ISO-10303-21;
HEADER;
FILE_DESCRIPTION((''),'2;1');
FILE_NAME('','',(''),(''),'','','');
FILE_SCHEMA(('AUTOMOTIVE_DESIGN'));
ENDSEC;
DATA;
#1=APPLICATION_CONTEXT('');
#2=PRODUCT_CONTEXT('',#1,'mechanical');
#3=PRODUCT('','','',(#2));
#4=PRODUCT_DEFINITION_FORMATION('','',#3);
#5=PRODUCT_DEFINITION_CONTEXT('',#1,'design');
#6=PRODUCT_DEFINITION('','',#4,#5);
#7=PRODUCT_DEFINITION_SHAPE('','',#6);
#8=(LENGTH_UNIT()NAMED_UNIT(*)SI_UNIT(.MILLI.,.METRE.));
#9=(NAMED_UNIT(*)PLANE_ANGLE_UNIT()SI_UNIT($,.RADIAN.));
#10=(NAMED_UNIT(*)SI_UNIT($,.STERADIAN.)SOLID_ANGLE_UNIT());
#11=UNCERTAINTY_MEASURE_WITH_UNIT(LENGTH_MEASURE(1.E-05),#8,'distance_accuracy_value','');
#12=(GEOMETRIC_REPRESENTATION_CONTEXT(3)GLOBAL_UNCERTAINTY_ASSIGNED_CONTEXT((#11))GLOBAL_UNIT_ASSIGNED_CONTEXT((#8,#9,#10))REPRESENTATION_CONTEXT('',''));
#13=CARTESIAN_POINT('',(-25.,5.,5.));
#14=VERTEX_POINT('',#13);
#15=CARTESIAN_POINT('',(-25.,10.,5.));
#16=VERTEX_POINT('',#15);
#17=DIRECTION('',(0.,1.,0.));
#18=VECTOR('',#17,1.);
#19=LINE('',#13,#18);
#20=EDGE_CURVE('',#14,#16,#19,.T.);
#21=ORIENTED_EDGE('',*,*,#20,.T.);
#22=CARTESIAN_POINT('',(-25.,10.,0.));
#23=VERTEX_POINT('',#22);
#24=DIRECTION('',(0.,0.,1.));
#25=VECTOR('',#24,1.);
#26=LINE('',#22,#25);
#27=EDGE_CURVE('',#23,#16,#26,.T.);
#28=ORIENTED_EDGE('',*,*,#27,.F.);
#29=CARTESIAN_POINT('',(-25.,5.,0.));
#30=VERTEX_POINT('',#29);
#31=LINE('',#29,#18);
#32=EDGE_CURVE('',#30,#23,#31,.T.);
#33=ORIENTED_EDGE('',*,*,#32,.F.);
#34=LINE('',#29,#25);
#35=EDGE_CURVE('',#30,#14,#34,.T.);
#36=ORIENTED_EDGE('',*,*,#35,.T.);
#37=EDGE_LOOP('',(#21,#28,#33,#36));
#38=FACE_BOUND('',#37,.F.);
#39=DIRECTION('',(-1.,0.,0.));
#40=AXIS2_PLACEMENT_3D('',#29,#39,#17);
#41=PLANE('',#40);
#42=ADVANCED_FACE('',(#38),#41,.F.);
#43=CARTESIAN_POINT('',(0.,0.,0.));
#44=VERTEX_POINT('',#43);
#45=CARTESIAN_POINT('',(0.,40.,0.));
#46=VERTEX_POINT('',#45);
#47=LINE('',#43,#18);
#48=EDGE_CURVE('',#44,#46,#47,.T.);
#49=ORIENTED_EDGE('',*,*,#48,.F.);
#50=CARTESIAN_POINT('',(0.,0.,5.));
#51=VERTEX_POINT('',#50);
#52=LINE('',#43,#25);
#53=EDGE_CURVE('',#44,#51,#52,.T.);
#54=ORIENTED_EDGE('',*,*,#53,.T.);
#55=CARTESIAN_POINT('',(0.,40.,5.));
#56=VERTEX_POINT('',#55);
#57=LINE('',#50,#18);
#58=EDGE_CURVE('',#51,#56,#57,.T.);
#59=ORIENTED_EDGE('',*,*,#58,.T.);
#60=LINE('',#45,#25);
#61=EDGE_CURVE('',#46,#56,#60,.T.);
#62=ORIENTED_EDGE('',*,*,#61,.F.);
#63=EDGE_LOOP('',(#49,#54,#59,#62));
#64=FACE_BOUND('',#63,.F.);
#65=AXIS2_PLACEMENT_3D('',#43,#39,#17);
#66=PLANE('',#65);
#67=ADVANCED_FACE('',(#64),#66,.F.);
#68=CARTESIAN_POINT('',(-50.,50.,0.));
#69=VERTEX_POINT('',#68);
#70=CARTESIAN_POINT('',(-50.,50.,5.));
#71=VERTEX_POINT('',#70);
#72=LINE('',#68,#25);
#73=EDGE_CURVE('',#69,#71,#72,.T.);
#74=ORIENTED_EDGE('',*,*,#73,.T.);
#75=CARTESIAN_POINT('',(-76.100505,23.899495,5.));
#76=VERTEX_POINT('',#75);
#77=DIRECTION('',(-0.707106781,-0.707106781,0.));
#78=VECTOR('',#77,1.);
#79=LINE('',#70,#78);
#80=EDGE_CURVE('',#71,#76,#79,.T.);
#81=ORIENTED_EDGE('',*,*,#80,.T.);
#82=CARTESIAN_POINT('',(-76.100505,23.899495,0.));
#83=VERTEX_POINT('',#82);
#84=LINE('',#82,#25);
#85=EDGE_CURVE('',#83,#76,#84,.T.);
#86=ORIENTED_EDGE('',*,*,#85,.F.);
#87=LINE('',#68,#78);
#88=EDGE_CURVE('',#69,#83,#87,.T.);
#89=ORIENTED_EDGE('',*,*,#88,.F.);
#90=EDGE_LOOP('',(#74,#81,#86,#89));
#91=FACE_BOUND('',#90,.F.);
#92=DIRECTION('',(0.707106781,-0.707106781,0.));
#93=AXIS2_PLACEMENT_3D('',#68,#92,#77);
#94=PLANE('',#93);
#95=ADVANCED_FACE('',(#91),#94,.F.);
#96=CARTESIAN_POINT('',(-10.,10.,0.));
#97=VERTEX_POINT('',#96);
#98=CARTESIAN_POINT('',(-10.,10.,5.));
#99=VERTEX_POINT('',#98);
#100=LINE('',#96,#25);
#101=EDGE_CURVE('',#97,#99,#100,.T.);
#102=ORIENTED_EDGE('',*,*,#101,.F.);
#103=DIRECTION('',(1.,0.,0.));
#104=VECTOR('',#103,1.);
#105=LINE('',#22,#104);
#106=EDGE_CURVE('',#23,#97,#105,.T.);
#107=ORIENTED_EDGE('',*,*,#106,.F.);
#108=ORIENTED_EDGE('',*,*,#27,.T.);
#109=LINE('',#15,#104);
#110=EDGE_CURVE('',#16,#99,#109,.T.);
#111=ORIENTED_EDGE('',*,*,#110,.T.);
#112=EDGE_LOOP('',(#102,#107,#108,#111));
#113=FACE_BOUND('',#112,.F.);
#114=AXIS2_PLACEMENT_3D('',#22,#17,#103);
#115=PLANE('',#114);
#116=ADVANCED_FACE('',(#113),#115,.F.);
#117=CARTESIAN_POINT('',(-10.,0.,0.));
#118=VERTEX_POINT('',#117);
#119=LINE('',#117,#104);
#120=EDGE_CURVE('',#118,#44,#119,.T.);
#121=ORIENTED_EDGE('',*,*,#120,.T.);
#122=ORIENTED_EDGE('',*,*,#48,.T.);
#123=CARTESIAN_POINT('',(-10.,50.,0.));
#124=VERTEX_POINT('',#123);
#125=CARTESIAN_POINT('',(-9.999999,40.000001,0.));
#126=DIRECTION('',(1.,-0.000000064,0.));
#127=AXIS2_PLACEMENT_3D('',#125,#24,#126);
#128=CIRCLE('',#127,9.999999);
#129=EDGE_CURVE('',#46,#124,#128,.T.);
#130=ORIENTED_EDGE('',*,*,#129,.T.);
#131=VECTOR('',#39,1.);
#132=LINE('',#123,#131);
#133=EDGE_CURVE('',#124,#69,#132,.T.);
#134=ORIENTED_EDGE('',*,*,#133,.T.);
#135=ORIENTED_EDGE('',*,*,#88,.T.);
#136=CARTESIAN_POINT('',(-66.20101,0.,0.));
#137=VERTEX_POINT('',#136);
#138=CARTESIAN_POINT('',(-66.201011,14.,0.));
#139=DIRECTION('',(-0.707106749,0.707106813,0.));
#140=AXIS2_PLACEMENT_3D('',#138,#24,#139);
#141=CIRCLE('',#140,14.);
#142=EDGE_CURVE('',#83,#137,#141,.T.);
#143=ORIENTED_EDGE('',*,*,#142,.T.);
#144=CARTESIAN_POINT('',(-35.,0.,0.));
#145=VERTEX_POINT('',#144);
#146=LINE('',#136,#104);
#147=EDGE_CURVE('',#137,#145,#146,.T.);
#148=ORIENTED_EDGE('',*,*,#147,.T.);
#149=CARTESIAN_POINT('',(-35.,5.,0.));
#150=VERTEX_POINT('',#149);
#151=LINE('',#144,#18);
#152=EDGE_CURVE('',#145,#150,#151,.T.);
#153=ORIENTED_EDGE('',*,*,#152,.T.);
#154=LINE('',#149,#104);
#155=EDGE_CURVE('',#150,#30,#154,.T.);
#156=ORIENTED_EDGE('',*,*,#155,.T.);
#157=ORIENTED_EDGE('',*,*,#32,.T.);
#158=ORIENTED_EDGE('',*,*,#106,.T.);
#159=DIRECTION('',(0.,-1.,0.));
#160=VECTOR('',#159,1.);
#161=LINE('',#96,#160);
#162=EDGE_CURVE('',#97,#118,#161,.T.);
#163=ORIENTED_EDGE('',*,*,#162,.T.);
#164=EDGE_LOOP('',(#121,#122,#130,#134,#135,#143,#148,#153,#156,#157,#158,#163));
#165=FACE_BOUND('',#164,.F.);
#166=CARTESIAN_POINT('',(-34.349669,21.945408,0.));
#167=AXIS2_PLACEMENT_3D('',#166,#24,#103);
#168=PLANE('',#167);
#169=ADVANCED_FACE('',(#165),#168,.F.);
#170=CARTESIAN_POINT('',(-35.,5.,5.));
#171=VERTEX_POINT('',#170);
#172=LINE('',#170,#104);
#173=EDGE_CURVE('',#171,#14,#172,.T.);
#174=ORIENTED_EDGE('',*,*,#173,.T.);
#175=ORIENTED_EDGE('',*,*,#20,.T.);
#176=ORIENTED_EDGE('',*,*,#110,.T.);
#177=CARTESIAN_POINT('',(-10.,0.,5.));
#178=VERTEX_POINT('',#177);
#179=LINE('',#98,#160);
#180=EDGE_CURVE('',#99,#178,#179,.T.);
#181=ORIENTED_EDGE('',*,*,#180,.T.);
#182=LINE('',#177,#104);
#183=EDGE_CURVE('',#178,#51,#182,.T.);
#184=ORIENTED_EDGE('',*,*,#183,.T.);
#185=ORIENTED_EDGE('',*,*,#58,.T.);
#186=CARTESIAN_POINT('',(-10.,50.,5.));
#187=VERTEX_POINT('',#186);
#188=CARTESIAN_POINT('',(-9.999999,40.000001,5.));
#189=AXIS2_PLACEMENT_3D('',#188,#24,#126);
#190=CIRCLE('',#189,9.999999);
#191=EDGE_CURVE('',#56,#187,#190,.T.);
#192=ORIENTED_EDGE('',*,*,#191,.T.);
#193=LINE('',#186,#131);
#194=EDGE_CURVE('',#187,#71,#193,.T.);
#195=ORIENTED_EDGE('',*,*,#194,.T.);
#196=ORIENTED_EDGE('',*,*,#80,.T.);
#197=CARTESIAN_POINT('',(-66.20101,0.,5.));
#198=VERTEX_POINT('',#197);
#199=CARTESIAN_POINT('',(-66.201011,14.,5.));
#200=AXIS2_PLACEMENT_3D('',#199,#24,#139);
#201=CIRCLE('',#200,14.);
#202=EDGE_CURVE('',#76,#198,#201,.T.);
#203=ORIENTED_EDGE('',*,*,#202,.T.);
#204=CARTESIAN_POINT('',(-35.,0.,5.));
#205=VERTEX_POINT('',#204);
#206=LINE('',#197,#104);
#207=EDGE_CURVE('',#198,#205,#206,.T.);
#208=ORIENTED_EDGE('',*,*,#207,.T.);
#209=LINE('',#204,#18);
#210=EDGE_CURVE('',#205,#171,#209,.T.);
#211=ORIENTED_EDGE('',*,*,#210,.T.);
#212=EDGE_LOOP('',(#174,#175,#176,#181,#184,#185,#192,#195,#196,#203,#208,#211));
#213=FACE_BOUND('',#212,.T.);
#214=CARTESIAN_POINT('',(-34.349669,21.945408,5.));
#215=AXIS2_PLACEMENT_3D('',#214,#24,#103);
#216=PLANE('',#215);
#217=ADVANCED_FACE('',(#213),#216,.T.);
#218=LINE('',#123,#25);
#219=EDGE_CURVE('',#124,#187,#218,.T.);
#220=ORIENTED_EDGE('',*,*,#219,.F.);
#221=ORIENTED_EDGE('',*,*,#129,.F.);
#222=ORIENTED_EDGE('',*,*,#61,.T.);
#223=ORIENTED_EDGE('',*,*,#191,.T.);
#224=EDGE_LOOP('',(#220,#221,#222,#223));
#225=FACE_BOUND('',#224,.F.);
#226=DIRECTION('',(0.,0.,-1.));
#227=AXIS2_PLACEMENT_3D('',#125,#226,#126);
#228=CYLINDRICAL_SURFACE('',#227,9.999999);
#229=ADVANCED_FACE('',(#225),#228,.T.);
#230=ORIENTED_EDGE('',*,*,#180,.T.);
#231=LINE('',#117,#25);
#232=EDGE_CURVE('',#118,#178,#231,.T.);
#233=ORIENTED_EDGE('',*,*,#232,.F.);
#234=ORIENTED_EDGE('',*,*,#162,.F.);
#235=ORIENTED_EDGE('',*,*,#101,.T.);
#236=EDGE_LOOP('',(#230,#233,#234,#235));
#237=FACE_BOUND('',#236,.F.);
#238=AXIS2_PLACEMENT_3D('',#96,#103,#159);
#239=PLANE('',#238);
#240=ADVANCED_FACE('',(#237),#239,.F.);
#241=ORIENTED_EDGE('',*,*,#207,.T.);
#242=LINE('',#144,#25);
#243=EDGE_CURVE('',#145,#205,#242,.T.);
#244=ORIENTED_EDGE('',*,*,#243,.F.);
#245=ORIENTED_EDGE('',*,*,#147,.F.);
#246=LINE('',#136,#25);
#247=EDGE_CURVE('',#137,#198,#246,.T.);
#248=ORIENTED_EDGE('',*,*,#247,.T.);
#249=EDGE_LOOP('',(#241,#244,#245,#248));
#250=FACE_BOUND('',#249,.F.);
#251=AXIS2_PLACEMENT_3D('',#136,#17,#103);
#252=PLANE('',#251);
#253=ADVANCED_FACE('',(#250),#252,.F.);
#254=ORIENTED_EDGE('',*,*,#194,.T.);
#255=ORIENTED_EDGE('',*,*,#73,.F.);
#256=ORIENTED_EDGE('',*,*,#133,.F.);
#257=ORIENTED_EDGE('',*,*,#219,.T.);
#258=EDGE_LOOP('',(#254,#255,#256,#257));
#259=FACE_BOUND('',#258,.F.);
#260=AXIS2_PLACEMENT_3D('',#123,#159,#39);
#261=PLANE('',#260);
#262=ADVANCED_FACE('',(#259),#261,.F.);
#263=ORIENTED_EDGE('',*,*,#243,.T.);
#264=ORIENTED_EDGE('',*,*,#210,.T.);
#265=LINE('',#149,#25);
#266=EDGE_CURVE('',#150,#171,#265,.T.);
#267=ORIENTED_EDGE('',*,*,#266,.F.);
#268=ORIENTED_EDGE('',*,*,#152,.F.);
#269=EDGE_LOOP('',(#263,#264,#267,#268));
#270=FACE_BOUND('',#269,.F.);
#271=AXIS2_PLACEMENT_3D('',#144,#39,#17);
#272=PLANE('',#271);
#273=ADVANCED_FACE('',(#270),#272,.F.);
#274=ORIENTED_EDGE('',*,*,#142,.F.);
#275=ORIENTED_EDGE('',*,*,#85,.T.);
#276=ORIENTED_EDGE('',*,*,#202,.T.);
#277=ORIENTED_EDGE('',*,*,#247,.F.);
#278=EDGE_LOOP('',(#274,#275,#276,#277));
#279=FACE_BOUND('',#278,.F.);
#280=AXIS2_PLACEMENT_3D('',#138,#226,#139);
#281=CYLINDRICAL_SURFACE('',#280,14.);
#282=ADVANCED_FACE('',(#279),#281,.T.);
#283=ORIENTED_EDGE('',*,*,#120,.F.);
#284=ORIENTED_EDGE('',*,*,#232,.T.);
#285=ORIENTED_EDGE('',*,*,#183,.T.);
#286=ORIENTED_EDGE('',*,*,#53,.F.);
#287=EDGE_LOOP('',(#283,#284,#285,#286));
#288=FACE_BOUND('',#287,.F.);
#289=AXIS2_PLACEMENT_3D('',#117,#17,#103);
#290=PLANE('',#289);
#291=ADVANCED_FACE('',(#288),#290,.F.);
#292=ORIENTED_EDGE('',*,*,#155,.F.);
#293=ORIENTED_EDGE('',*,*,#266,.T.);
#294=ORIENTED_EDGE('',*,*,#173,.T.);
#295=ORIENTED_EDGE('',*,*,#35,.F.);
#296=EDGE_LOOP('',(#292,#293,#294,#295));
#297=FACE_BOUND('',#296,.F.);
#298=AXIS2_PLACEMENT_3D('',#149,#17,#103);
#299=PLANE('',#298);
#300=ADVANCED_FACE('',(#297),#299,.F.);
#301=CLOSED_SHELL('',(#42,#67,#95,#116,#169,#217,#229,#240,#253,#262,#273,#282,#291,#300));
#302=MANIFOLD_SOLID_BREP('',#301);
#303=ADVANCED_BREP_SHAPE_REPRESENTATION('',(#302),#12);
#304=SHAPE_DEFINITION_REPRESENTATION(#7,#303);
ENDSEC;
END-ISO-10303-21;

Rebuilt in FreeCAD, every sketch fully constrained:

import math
import FreeCAD as App
import Part
import Sketcher
from FreeCAD import Vector
Q = App.Units.Quantity

doc = App.newDocument("Part")
body = doc.addObject("PartDesign::Body", "Body")

sketch1 = body.newObject("Sketcher::SketchObject", "Sketch")
sketch1.AttachmentSupport = (doc.getObject("XY_Plane"), [""])
sketch1.MapMode = "FlatFace"
sketch1.addGeometry([
    Part.LineSegment(Vector(-10, 0, 0), Vector(0, 0, 0)),
    Part.LineSegment(Vector(0, 0, 0), Vector(0, 40, 0)),
    Part.ArcOfCircle(Part.Circle(Vector(-10, 40, 0), Vector(0, 0, 1), 10), math.radians(0), math.radians(90)),
    Part.LineSegment(Vector(-10, 50, 0), Vector(-50, 50, 0)),
    Part.LineSegment(Vector(-50, 50, 0), Vector(-76, 24, 0)),
    Part.ArcOfCircle(Part.Circle(Vector(-66, 14, 0), Vector(0, 0, 1), 14), math.radians(135), math.radians(270)),
    Part.LineSegment(Vector(-66, 0, 0), Vector(-35, 0, 0)),
    Part.LineSegment(Vector(-35, 0, 0), Vector(-35, 5, 0)),
    Part.LineSegment(Vector(-35, 5, 0), Vector(-25, 5, 0)),
    Part.LineSegment(Vector(-25, 5, 0), Vector(-25, 10, 0)),
    Part.LineSegment(Vector(-25, 10, 0), Vector(-10, 10, 0)),
    Part.LineSegment(Vector(-10, 10, 0), Vector(-10, 0, 0)),
], False)
sketch1.addConstraint([
    Sketcher.Constraint("Coincident", 0, 2, 1, 1),
    Sketcher.Constraint("Tangent", 1, 2, 2, 1),
    Sketcher.Constraint("Tangent", 2, 2, 3, 1),
    Sketcher.Constraint("Coincident", 3, 2, 4, 1),
    Sketcher.Constraint("Tangent", 4, 2, 5, 1),
    Sketcher.Constraint("Tangent", 5, 2, 6, 1),
    Sketcher.Constraint("Coincident", 6, 2, 7, 1),
    Sketcher.Constraint("Coincident", 7, 2, 8, 1),
    Sketcher.Constraint("Coincident", 8, 2, 9, 1),
    Sketcher.Constraint("Coincident", 9, 2, 10, 1),
    Sketcher.Constraint("Coincident", 10, 2, 11, 1),
    Sketcher.Constraint("Coincident", 11, 2, 0, 1),
    Sketcher.Constraint("Horizontal", 0),
    Sketcher.Constraint("Vertical", 1),
    Sketcher.Constraint("Horizontal", 3),
    Sketcher.Constraint("Horizontal", 6),
    Sketcher.Constraint("Vertical", 7),
    Sketcher.Constraint("Horizontal", 8),
    Sketcher.Constraint("Vertical", 9),
    Sketcher.Constraint("Horizontal", 10),
    Sketcher.Constraint("Vertical", 11),
    Sketcher.Constraint("Coincident", 0, 2, -1, 1),
    Sketcher.Constraint("PointOnObject", 5, 2, -1),
    Sketcher.Constraint("Vertical", 2, 2, 10, 2),
    Sketcher.Constraint("Equal", 0, 8),
    Sketcher.Constraint("Equal", 3, 1),
    Sketcher.Constraint("Equal", 7, 9),
    Sketcher.Constraint("Equal", 8, 11),
    Sketcher.Constraint("Radius", 2, Q("9.999999 mm")),
    Sketcher.Constraint("Radius", 5, Q("14 mm")),
    Sketcher.Constraint("DistanceX", 3, 2, 3, 1, Q("40 mm")),
    Sketcher.Constraint("DistanceX", 10, 1, 10, 2, Q("15 mm")),
    Sketcher.Constraint("Angle", 4, Q("-135 deg")),
])
pad1 = body.newObject("PartDesign::Pad", "Pad")
pad1.Profile = sketch1
pad1.Length = 5

doc.recompute()
